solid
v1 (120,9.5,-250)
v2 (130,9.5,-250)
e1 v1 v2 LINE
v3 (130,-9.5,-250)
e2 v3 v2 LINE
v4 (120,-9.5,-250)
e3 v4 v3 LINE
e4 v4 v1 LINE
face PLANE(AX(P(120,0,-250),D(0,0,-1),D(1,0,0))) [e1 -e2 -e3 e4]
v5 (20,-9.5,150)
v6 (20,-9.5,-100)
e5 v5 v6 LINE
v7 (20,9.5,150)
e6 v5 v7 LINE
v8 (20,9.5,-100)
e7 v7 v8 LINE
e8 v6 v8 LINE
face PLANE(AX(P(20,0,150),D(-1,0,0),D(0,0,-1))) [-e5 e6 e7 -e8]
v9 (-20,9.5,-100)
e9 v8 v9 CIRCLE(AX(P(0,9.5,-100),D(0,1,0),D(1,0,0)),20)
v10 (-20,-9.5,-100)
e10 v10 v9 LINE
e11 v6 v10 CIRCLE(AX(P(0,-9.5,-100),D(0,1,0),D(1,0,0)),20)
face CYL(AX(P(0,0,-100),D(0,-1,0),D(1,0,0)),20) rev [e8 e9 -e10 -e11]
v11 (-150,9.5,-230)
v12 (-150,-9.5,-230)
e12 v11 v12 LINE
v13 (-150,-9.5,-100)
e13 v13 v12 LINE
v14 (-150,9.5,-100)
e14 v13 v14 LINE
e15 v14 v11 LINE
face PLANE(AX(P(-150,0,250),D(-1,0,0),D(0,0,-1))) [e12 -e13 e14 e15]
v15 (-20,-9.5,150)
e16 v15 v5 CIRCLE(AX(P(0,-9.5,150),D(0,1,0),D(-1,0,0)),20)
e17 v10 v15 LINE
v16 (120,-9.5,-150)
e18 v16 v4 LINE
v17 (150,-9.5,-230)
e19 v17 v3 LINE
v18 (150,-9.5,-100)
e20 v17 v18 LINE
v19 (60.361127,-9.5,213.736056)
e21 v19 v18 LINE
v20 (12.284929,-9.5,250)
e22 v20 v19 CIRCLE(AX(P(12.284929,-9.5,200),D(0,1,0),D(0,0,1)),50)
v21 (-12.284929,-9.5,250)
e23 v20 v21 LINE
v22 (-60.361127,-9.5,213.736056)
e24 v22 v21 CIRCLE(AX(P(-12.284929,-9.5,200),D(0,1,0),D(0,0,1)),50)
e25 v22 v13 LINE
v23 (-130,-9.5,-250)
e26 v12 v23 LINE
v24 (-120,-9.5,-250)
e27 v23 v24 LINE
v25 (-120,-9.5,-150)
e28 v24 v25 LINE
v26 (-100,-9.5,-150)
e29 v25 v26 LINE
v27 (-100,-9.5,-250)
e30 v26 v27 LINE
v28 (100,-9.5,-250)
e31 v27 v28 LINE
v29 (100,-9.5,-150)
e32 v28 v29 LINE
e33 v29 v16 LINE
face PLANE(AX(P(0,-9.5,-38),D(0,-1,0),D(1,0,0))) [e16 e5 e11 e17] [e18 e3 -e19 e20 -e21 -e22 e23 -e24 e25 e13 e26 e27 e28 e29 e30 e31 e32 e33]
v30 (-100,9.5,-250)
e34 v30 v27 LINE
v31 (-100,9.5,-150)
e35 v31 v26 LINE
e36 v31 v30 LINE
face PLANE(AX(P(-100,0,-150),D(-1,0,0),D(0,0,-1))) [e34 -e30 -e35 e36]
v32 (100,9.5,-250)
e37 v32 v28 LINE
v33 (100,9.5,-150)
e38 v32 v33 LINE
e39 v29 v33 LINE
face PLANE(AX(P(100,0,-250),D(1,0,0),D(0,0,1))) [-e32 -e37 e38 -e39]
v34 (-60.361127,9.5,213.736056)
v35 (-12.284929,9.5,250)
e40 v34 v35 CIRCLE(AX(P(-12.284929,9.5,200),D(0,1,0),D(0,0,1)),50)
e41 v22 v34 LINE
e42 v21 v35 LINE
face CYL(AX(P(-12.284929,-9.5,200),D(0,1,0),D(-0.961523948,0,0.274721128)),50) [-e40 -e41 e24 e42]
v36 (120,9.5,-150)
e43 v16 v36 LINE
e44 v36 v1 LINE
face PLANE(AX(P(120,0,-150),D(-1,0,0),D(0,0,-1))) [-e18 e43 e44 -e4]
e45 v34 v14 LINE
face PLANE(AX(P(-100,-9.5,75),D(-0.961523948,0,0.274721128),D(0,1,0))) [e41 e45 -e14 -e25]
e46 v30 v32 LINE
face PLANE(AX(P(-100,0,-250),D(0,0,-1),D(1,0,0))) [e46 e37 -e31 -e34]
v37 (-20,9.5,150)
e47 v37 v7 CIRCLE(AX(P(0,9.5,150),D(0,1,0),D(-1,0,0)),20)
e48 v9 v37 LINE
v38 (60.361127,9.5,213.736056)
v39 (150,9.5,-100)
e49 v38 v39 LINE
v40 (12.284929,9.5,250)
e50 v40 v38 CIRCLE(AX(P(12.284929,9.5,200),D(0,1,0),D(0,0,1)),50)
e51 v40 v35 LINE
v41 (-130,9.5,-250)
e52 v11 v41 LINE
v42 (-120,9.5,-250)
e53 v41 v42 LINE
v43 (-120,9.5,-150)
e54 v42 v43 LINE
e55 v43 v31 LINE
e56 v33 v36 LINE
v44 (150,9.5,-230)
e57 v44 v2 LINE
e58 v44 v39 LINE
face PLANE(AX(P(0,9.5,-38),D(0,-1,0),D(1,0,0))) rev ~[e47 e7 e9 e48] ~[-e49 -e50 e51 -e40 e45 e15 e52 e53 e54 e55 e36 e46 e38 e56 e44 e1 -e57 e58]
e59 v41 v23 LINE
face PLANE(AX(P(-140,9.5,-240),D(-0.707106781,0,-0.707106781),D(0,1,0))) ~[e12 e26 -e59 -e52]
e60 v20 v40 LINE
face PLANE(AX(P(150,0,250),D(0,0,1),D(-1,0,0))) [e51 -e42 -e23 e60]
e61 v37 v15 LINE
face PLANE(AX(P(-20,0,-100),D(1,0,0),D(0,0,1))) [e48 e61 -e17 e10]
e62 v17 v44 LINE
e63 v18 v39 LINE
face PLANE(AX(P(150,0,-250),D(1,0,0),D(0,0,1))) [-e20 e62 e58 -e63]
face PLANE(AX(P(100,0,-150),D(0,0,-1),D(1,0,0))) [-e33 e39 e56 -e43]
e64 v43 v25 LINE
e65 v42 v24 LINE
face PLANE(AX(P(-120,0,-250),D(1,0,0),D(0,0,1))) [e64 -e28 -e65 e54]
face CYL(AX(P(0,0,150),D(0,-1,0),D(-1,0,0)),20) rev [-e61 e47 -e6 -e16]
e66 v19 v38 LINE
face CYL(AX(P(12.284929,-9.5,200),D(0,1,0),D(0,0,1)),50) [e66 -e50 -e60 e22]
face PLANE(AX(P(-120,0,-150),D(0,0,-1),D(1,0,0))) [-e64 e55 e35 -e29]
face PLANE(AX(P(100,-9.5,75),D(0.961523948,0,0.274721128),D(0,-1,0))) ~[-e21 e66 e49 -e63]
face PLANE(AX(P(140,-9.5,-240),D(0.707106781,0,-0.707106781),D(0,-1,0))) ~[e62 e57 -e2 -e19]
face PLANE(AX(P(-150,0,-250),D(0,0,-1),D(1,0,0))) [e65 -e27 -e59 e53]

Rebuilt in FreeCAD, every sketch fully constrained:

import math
import FreeCAD as App
import Part
import Sketcher


def edges_at(feature, points):
    """Names of the edges that pass closest to the given points."""
    edges = feature.Shape.Edges
    near = lambda p: min(range(len(edges)), key=lambda i: edges[i].distToShape(Part.Vertex(*p))[0])
    return sorted({f"Edge{near(p) + 1}" for p in points})


def add_polygon(sketch, points):
    """Adds a closed chain of lines whose ends are joined by coincident constraints."""
    first, n = sketch.GeometryCount, len(points)
    for a, b in zip(points, points[1:] + points[:1]):
        sketch.addGeometry(Part.LineSegment(App.Vector(*a, 0), App.Vector(*b, 0)), False)
    for i in range(n):
        sketch.addConstraint(Sketcher.Constraint("Coincident", first + i, 2, first + (i + 1) % n, 1))

doc = App.newDocument("Part")
body = doc.addObject("PartDesign::Body", "Body")

# Sketch on XZ plane
sketch1 = body.newObject("Sketcher::SketchObject", "Sketch")
sketch1.AttachmentSupport = (doc.getObject("XZ_Plane"), [""])
sketch1.MapMode = "FlatFace"
add_polygon(sketch1, [(-150, 250), (-150, -250), (-120, -250), (-120, -150), (-100, -150), (-100, -250), (100, -250), (100, -150), (120, -150), (120, -250), (150, -250), (150, 250)])  # lines 0-11
sketch1.addGeometry(Part.LineSegment(App.Vector(-20, -100, 0), App.Vector(-20, 150, 0)), False)  # 12
sketch1.addGeometry(Part.ArcOfCircle(Part.Circle(App.Vector(0, 150, 0), App.Vector(0, 0, 1), 20), math.radians(0), math.radians(180)), False)  # 13
sketch1.addGeometry(Part.LineSegment(App.Vector(20, 150, 0), App.Vector(20, -100, 0)), False)  # 14
sketch1.addGeometry(Part.ArcOfCircle(Part.Circle(App.Vector(0, -100, 0), App.Vector(0, 0, 1), 20), math.radians(180), math.radians(360)), False)  # 15
sketch1.addConstraint([
    Sketcher.Constraint("Tangent", 12, 2, 13, 2),
    Sketcher.Constraint("Tangent", 13, 1, 14, 1),
    Sketcher.Constraint("Tangent", 14, 2, 15, 2),
    Sketcher.Constraint("Tangent", 15, 1, 12, 1),
    Sketcher.Constraint("Vertical", 0),
    Sketcher.Constraint("Horizontal", 1),
    Sketcher.Constraint("Vertical", 2),
    Sketcher.Constraint("Horizontal", 3),
    Sketcher.Constraint("Vertical", 4),
    Sketcher.Constraint("Horizontal", 5),
    Sketcher.Constraint("Vertical", 6),
    Sketcher.Constraint("Horizontal", 7),
    Sketcher.Constraint("Vertical", 8),
    Sketcher.Constraint("Horizontal", 9),
    Sketcher.Constraint("Vertical", 10),
    Sketcher.Constraint("Horizontal", 11),
    Sketcher.Constraint("Vertical", 12),
    Sketcher.Constraint("Vertical", 14),
    Sketcher.Constraint("Symmetric", 0, 2, 10, 2, -1, 1),
    Sketcher.Constraint("Symmetric", 3, 2, 6, 2, -2),
    Sketcher.Constraint("Symmetric", 1, 2, 8, 2, -2),
    Sketcher.Constraint("PointOnObject", 13, 3, -2),
    Sketcher.Constraint("Horizontal", 1, 2, 4, 2),
    Sketcher.Constraint("Radius", 13, 20.0),
    Sketcher.Constraint("DistanceX", 1, 1, 1, 2, 30.0),
    Sketcher.Constraint("DistanceX", 3, 1, 3, 2, 20.0),
    Sketcher.Constraint("DistanceX", 5, 1, 5, 2, 200.0),
    Sketcher.Constraint("DistanceY", 0, 2, 0, 1, 500.0),
    Sketcher.Constraint("DistanceY", 2, 1, 2, 2, 100.0),
    Sketcher.Constraint("DistanceY", 12, 1, 12, 2, 250.0),
    Sketcher.Constraint("DistanceY", -1, 1, 13, 3, 150.0),
])
pad1 = body.newObject("PartDesign::Pad", "Pad")
pad1.Profile = sketch1
pad1.Length = 19
pad1.Midplane = True
doc.recompute()

chamfer = body.newObject("PartDesign::Chamfer", "Chamfer")
chamfer.Base = (pad1, edges_at(pad1, [(150, 0, 250), (-150, 0, 250)]))
chamfer.ChamferType = "Two distances"
chamfer.Size = 100
chamfer.Size2 = 350
chamfer.FlipDirection = True
doc.recompute()

fillet = body.newObject("PartDesign::Fillet", "Fillet")
fillet.Base = (chamfer, edges_at(chamfer, [(-50, 0, 250), (50, 0, 250)]))
fillet.Radius = 50
doc.recompute()

chamfer2 = body.newObject("PartDesign::Chamfer", "Chamfer001")
chamfer2.Base = (fillet, edges_at(fillet, [(-150, 0, -250), (150, 0, -250)]))
chamfer2.Size = 20

doc.recompute()
